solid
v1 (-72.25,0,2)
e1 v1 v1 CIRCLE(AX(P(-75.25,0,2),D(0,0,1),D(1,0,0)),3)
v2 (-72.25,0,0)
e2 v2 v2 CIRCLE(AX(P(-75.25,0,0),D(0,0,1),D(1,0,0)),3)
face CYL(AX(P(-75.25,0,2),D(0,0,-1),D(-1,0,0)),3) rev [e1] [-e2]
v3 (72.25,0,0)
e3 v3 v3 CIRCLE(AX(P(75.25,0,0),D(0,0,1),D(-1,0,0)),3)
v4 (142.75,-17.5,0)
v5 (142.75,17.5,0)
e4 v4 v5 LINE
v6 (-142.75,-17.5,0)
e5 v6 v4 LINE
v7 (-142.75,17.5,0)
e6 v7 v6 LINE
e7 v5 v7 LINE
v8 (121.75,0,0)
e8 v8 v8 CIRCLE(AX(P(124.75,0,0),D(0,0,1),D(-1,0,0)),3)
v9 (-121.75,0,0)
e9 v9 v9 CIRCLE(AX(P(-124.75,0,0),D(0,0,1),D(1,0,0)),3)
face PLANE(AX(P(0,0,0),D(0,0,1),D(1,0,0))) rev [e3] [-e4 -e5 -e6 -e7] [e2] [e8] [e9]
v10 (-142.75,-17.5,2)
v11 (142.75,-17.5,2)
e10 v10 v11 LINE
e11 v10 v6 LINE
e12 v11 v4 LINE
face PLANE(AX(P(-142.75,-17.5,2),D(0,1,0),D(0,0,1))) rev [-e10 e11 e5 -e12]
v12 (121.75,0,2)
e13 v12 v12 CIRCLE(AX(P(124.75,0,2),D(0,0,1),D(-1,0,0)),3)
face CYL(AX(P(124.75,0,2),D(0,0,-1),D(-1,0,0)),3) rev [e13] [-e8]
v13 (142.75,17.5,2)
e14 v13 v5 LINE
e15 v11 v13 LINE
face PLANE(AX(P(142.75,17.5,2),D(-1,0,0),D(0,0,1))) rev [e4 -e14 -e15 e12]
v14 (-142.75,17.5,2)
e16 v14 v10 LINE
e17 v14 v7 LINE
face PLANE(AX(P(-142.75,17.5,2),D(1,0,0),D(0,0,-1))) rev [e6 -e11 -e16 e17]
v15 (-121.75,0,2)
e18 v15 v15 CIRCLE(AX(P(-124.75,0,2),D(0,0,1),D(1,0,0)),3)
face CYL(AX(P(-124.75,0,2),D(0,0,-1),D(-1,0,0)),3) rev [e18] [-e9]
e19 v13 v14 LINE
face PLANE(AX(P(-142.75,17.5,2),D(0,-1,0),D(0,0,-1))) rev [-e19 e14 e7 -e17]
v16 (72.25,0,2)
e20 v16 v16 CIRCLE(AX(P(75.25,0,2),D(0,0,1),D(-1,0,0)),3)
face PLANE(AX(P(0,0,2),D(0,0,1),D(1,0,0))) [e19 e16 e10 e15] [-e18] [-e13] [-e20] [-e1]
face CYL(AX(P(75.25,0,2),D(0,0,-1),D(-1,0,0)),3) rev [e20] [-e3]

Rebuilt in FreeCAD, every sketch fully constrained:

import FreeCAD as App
import Part
import Sketcher
from FreeCAD import Vector


def add_polygon(sketch, points):
    """Adds a closed chain of lines whose ends are joined by coincident constraints."""
    first, n = sketch.GeometryCount, len(points)
    for a, b in zip(points, points[1:] + points[:1]):
        sketch.addGeometry(Part.LineSegment(App.Vector(*a, 0), App.Vector(*b, 0)), False)
    for i in range(n):
        sketch.addConstraint(Sketcher.Constraint("Coincident", first + i, 2, first + (i + 1) % n, 1))

doc = App.newDocument("Part")
body = doc.addObject("PartDesign::Body", "Body")

# Sketch on XY plane
sketch1 = doc.addObject("Sketcher::SketchObject", "Sketch")
body.addObject(sketch1)
sketch1.AttachmentSupport = (doc.XY_Plane, [""])
sketch1.MapMode = "FlatFace"
add_polygon(sketch1, [(-142.8, 17.5), (-142.8, -17.5), (142.8, -17.5), (142.8, 17.5)])  # lines 0-3
sketch1.addGeometry(Part.Circle(Vector(-124.8, 0, 0), Vector(0, 0, 1), 3), False)  # 4
sketch1.addGeometry(Part.Circle(Vector(-75.2, 0, 0), Vector(0, 0, 1), 3), False)  # 5
sketch1.addGeometry(Part.Circle(Vector(75.2, 0, 0), Vector(0, 0, 1), 3), False)  # 6
sketch1.addGeometry(Part.Circle(Vector(124.8, 0, 0), Vector(0, 0, 1), 3), False)  # 7
sketch1.addConstraint([
    Sketcher.Constraint("Vertical", 0),
    Sketcher.Constraint("Horizontal", 1),
    Sketcher.Constraint("Vertical", 2),
    Sketcher.Constraint("Horizontal", 3),
    Sketcher.Constraint("Equal", 4, 5),
    Sketcher.Constraint("Equal", 5, 6),
    Sketcher.Constraint("Equal", 6, 7),
    Sketcher.Constraint("Symmetric", 5, 3, 6, 3, -1, 1),
    Sketcher.Constraint("Symmetric", 4, 3, 7, 3, -1, 1),
    Sketcher.Constraint("Symmetric", 0, 2, 2, 2, -1, 1),
    Sketcher.Constraint("PointOnObject", 4, 3, -1),
    Sketcher.Constraint("PointOnObject", 5, 3, -1),
    Sketcher.Constraint("Diameter", 4, 6.0),
    Sketcher.Constraint("DistanceY", 0, 2, 0, 1, 35.0),
    Sketcher.Constraint("DistanceX", 1, 1, 1, 2, 285.5),
    Sketcher.Constraint("DistanceX", 4, 3, 6, 3, 200.0),
    Sketcher.Constraint("DistanceX", 0, 2, 4, 3, 18.0),
])
pad1 = doc.addObject("PartDesign::Pad", "Pad")
body.addObject(pad1)
pad1.Profile = sketch1
pad1.Length = 2

doc.recompute()
